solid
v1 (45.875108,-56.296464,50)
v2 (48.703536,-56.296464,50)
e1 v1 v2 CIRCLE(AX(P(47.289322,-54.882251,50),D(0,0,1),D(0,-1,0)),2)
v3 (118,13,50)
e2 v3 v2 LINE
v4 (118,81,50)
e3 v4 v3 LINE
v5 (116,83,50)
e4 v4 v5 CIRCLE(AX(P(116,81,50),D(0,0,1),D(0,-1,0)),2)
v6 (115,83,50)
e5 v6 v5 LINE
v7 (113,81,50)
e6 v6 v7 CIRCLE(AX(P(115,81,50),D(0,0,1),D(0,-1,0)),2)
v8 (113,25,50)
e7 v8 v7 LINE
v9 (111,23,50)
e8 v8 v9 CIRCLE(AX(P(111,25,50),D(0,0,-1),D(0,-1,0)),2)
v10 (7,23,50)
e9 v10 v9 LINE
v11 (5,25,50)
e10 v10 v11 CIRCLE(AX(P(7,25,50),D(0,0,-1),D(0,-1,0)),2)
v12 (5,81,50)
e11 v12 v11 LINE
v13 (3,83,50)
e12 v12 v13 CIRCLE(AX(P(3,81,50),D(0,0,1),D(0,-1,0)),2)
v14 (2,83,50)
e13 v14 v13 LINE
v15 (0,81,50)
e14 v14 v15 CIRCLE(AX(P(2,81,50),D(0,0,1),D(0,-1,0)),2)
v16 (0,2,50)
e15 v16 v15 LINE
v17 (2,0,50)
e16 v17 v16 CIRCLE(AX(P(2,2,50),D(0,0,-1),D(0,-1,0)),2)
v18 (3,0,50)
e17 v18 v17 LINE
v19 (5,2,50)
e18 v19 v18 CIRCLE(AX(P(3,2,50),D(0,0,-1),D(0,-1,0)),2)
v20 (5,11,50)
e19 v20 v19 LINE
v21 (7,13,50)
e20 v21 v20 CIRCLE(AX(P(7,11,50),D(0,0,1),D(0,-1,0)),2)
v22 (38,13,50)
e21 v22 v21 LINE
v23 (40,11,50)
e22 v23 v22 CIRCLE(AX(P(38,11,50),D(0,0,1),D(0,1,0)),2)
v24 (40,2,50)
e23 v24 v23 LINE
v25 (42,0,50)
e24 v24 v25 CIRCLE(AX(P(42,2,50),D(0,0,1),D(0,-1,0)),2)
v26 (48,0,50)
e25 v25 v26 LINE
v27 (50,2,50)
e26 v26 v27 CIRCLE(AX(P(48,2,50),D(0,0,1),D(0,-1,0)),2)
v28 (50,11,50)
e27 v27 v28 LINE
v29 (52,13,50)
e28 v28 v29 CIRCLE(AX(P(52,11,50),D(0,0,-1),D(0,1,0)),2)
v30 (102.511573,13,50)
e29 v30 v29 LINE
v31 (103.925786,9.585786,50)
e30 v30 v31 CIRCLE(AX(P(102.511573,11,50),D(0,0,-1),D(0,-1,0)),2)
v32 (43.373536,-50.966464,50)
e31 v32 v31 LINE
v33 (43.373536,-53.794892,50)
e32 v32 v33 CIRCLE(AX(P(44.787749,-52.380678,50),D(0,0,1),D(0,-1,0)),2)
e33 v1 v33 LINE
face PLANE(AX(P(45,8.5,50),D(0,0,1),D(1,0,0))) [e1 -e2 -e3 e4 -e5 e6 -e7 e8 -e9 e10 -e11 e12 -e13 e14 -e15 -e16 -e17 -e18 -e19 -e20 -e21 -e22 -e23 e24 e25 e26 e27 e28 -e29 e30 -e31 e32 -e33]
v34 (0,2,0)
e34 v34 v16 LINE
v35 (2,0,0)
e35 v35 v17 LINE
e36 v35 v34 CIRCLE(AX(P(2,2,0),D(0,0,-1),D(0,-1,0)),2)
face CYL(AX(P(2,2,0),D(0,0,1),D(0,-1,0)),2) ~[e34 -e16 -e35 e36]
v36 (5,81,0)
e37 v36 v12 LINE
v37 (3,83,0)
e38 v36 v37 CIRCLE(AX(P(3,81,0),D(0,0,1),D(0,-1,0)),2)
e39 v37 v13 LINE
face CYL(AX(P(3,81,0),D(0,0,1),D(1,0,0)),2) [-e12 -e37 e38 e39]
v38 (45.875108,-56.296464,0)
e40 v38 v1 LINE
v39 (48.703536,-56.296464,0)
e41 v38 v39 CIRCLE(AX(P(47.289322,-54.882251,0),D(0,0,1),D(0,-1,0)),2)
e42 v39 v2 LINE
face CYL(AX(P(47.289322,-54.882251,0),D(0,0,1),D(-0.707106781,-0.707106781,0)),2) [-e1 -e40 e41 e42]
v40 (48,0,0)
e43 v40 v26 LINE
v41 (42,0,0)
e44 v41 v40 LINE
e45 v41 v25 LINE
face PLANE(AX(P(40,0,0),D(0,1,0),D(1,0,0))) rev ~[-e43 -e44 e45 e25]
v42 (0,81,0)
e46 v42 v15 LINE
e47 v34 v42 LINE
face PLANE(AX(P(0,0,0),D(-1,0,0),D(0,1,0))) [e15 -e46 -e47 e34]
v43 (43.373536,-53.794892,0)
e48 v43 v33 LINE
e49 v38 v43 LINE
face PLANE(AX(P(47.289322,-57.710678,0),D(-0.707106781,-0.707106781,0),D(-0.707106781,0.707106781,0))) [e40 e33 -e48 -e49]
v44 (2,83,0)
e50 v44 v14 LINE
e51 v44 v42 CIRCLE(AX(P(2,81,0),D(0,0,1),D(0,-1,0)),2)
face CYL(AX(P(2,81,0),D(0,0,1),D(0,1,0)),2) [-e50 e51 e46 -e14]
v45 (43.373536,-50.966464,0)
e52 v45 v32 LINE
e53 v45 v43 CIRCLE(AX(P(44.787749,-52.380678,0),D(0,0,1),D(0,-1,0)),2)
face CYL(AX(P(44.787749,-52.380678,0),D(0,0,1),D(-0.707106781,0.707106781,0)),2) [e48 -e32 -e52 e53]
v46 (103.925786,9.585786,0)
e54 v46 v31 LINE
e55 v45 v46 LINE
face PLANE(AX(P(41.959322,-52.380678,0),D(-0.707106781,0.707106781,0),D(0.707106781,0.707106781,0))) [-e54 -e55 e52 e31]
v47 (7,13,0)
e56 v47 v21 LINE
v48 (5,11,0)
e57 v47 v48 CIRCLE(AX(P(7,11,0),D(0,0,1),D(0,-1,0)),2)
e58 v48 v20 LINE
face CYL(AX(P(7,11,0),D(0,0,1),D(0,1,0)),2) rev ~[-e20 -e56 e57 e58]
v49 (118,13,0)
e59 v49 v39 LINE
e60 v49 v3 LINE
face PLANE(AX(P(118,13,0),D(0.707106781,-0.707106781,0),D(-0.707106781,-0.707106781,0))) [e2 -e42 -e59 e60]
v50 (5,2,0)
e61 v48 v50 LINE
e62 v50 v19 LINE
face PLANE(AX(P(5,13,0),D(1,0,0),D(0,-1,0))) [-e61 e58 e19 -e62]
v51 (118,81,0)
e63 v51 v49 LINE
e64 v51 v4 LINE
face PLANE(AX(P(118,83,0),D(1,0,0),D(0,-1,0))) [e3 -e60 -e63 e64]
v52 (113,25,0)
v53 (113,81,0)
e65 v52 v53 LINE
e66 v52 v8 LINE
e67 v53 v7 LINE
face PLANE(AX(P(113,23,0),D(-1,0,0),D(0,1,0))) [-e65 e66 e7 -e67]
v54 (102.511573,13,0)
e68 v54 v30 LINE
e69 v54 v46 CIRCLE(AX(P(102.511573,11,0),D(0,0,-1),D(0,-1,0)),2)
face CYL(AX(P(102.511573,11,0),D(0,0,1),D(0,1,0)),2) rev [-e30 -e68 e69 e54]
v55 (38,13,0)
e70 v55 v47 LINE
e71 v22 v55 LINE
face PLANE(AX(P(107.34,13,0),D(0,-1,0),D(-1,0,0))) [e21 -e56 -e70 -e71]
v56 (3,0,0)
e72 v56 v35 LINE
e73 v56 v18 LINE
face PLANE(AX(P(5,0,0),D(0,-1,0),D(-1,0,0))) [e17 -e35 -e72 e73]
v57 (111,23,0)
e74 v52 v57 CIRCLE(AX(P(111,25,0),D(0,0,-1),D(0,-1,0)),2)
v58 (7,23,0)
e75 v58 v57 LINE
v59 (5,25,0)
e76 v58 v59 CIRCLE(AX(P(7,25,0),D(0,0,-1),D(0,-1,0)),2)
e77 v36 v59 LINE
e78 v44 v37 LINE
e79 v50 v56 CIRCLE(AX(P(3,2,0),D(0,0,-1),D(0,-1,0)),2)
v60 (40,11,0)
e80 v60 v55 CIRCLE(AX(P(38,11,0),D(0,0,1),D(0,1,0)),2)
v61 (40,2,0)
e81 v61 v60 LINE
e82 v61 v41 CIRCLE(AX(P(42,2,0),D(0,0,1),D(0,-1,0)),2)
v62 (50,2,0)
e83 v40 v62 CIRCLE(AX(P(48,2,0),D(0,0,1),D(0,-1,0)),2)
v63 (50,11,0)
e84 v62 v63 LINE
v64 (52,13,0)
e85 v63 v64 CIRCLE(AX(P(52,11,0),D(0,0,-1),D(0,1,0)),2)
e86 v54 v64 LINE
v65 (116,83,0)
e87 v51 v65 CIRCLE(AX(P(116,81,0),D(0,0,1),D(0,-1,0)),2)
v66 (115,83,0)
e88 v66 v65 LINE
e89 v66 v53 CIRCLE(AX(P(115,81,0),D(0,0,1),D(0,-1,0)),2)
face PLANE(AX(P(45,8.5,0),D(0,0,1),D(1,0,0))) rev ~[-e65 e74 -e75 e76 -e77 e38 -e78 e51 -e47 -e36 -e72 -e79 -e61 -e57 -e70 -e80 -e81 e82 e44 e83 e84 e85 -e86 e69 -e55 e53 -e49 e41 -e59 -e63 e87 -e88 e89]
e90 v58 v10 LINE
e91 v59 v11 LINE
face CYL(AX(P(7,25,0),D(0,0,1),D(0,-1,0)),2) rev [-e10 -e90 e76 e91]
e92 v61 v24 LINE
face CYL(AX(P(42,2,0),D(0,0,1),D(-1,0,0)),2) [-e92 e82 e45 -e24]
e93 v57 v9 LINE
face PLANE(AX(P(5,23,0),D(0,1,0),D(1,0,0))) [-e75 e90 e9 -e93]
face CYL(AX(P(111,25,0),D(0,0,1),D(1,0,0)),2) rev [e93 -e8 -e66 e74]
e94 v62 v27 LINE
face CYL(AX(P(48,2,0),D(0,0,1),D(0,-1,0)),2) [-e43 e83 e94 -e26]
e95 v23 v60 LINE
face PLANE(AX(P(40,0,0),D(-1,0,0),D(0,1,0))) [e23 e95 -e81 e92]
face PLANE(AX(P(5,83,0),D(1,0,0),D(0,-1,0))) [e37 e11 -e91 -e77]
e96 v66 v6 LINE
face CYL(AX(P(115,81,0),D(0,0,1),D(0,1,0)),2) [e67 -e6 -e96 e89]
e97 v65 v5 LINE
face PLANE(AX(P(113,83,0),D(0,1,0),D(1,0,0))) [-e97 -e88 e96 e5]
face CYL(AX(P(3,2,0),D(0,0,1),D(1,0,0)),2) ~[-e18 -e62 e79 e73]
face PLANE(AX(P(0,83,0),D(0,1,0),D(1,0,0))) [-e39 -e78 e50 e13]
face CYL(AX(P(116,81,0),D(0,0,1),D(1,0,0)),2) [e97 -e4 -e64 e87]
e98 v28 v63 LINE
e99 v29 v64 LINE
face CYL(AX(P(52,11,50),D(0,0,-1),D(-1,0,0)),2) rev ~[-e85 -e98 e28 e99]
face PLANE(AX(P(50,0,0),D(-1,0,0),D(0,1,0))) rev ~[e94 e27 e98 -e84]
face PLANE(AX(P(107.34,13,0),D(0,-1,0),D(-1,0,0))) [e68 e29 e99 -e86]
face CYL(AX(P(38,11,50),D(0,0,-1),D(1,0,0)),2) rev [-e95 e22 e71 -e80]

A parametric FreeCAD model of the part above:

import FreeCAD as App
import Part
import Sketcher

V = App.Vector
Q = App.Units.Quantity


def edges_at(feature, points):
    """Names of the edges that pass closest to the given points."""
    edges = feature.Shape.Edges
    near = lambda p: min(range(len(edges)), key=lambda i: edges[i].distToShape(Part.Vertex(*p))[0])
    return sorted({f"Edge{near(p) + 1}" for p in points})

doc = App.newDocument("Part")
body = doc.addObject("PartDesign::Body", "Body")

sketch1 = body.newObject("Sketcher::SketchObject", "Sketch")
sketch1.AttachmentSupport = (doc.getObject("XY_Plane"), [""])
sketch1.MapMode = "FlatFace"
sketch1.addGeometry(Part.LineSegment(V(40, 17, 0), V(40, 0, 0)), False)
sketch1.addGeometry(Part.LineSegment(V(40, 0, 0), V(50, 0, 0)), False)
sketch1.addGeometry(Part.LineSegment(V(50, 0, 0), V(50, 17, 0)), False)
sketch1.addGeometry(Part.LineSegment(V(50, 17, 0), V(40, 17, 0)), False)
sketch1.addConstraint(Sketcher.Constraint("Coincident", 0, 2, 1, 1))
sketch1.addConstraint(Sketcher.Constraint("Coincident", 1, 2, 2, 1))
sketch1.addConstraint(Sketcher.Constraint("Coincident", 2, 2, 3, 1))
sketch1.addConstraint(Sketcher.Constraint("Coincident", 3, 2, 0, 1))
sketch1.addConstraint(Sketcher.Constraint("Vertical", 0))
sketch1.addConstraint(Sketcher.Constraint("Horizontal", 1))
sketch1.addConstraint(Sketcher.Constraint("Vertical", 2))
sketch1.addConstraint(Sketcher.Constraint("Horizontal", 3))
sketch1.addConstraint(Sketcher.Constraint("PointOnObject", 0, 2, -1))
sketch1.addConstraint(Sketcher.Constraint("DistanceX", 1, 1, 1, 2, Q("10 mm")))
sketch1.addConstraint(Sketcher.Constraint("DistanceY", 0, 2, 0, 1, Q("17 mm")))
sketch1.addConstraint(Sketcher.Constraint("DistanceX", -1, 1, 0, 2, Q("40 mm")))
pad1 = body.newObject("PartDesign::Pad", "Pad")
pad1.Profile = sketch1
pad1.Length = 50
body2 = doc.addObject("PartDesign::Body", "Body001")

sketch2 = body2.newObject("Sketcher::SketchObject", "Sketch001")
sketch2.AttachmentSupport = (doc.getObject("XY_Plane001"), [""])
sketch2.MapMode = "FlatFace"
sketch2.addGeometry(Part.LineSegment(V(0, 83, 0), V(0, 0, 0)), False)
sketch2.addGeometry(Part.LineSegment(V(0, 0, 0), V(5, 0, 0)), False)
sketch2.addGeometry(Part.LineSegment(V(5, 0, 0), V(5, 13, 0)), False)
sketch2.addGeometry(Part.LineSegment(V(5, 13, 0), V(107.34, 13, 0)), False)
sketch2.addGeometry(Part.LineSegment(V(107.34, 13, 0), V(41.959322, -52.380678, 0)), False)
sketch2.addGeometry(Part.LineSegment(V(41.959322, -52.380678, 0), V(47.289322, -57.710678, 0)), False)
sketch2.addGeometry(Part.LineSegment(V(47.289322, -57.710678, 0), V(118, 13, 0)), False)
sketch2.addGeometry(Part.LineSegment(V(118, 13, 0), V(118, 83, 0)), False)
sketch2.addGeometry(Part.LineSegment(V(118, 83, 0), V(113, 83, 0)), False)
sketch2.addGeometry(Part.LineSegment(V(113, 83, 0), V(113, 23, 0)), False)
sketch2.addGeometry(Part.LineSegment(V(113, 23, 0), V(5, 23, 0)), False)
sketch2.addGeometry(Part.LineSegment(V(5, 23, 0), V(5, 83, 0)), False)
sketch2.addGeometry(Part.LineSegment(V(5, 83, 0), V(0, 83, 0)), False)
sketch2.addConstraint(Sketcher.Constraint("Coincident", 0, 2, 1, 1))
sketch2.addConstraint(Sketcher.Constraint("Coincident", 1, 2, 2, 1))
sketch2.addConstraint(Sketcher.Constraint("Coincident", 2, 2, 3, 1))
sketch2.addConstraint(Sketcher.Constraint("Coincident", 3, 2, 4, 1))
sketch2.addConstraint(Sketcher.Constraint("Coincident", 4, 2, 5, 1))
sketch2.addConstraint(Sketcher.Constraint("Coincident", 5, 2, 6, 1))
sketch2.addConstraint(Sketcher.Constraint("Coincident", 6, 2, 7, 1))
sketch2.addConstraint(Sketcher.Constraint("Coincident", 7, 2, 8, 1))
sketch2.addConstraint(Sketcher.Constraint("Coincident", 8, 2, 9, 1))
sketch2.addConstraint(Sketcher.Constraint("Coincident", 9, 2, 10, 1))
sketch2.addConstraint(Sketcher.Constraint("Coincident", 10, 2, 11, 1))
sketch2.addConstraint(Sketcher.Constraint("Coincident", 11, 2, 12, 1))
sketch2.addConstraint(Sketcher.Constraint("Coincident", 12, 2, 0, 1))
sketch2.addConstraint(Sketcher.Constraint("Vertical", 0))
sketch2.addConstraint(Sketcher.Constraint("Horizontal", 1))
sketch2.addConstraint(Sketcher.Constraint("Vertical", 2))
sketch2.addConstraint(Sketcher.Constraint("Horizontal", 3))
sketch2.addConstraint(Sketcher.Constraint("Vertical", 7))
sketch2.addConstraint(Sketcher.Constraint("Horizontal", 8))
sketch2.addConstraint(Sketcher.Constraint("Vertical", 9))
sketch2.addConstraint(Sketcher.Constraint("Horizontal", 10))
sketch2.addConstraint(Sketcher.Constraint("Vertical", 11))
sketch2.addConstraint(Sketcher.Constraint("Horizontal", 12))
sketch2.addConstraint(Sketcher.Constraint("Coincident", 0, 2, -1, 1))
sketch2.addConstraint(Sketcher.Constraint("Perpendicular", 4, 5))
sketch2.addConstraint(Sketcher.Constraint("Perpendicular", 5, 6))
sketch2.addConstraint(Sketcher.Constraint("Horizontal", 3, 2, 6, 2))
sketch2.addConstraint(Sketcher.Constraint("Horizontal", 8, 2, 11, 2))
sketch2.addConstraint(Sketcher.Constraint("Vertical", 2, 2, 10, 2))
sketch2.addConstraint(Sketcher.Constraint("Equal", 1, 8))
sketch2.addConstraint(Sketcher.Constraint("DistanceX", 1, 1, 1, 2, Q("5 mm")))
sketch2.addConstraint(Sketcher.Constraint("DistanceX", 10, 2, 10, 1, Q("108 mm")))
sketch2.addConstraint(Sketcher.Constraint("DistanceY", 0, 2, 0, 1, Q("83 mm")))
sketch2.addConstraint(Sketcher.Constraint("DistanceY", 2, 1, 2, 2, Q("13 mm")))
sketch2.addConstraint(Sketcher.Constraint("DistanceY", 9, 2, 9, 1, Q("60 mm")))
sketch2.addConstraint(Sketcher.Constraint("Angle", 4, Q("-135 deg")))
sketch2.addConstraint(Sketcher.Constraint("Distance", 6, Q("100 mm")))
sketch2.addConstraint(Sketcher.Constraint("DistanceX", 3, 1, 3, 2, Q("102.34 mm")))
pad2 = body2.newObject("PartDesign::Pad", "Pad001")
pad2.Profile = sketch2
pad2.Length = 50
doc.recompute()

boolean = body2.newObject("PartDesign::Boolean", "Boolean")
boolean.Type = "Fuse"
boolean.addObjects([body])
doc.recompute()

fillet = body2.newObject("PartDesign::Fillet", "Fillet")
fillet.Base = (boolean, edges_at(boolean, [
    (0, 0, 25),
    (0, 83, 25),
    (5, 0, 25),
    (5, 83, 25),
    (5, 13, 25),
    (5, 23, 25),
    (113, 23, 25),
    (113, 83, 25),
    (118, 83, 25),
    (47.289, -57.711, 25),
    (41.959, -52.381, 25),
    (107.34, 13, 25),
    (50, 13, 25),
    (40, 13, 25),
    (50, 0, 25),
    (40, 0, 25),
]))
fillet.Radius = 2

doc.recompute()
